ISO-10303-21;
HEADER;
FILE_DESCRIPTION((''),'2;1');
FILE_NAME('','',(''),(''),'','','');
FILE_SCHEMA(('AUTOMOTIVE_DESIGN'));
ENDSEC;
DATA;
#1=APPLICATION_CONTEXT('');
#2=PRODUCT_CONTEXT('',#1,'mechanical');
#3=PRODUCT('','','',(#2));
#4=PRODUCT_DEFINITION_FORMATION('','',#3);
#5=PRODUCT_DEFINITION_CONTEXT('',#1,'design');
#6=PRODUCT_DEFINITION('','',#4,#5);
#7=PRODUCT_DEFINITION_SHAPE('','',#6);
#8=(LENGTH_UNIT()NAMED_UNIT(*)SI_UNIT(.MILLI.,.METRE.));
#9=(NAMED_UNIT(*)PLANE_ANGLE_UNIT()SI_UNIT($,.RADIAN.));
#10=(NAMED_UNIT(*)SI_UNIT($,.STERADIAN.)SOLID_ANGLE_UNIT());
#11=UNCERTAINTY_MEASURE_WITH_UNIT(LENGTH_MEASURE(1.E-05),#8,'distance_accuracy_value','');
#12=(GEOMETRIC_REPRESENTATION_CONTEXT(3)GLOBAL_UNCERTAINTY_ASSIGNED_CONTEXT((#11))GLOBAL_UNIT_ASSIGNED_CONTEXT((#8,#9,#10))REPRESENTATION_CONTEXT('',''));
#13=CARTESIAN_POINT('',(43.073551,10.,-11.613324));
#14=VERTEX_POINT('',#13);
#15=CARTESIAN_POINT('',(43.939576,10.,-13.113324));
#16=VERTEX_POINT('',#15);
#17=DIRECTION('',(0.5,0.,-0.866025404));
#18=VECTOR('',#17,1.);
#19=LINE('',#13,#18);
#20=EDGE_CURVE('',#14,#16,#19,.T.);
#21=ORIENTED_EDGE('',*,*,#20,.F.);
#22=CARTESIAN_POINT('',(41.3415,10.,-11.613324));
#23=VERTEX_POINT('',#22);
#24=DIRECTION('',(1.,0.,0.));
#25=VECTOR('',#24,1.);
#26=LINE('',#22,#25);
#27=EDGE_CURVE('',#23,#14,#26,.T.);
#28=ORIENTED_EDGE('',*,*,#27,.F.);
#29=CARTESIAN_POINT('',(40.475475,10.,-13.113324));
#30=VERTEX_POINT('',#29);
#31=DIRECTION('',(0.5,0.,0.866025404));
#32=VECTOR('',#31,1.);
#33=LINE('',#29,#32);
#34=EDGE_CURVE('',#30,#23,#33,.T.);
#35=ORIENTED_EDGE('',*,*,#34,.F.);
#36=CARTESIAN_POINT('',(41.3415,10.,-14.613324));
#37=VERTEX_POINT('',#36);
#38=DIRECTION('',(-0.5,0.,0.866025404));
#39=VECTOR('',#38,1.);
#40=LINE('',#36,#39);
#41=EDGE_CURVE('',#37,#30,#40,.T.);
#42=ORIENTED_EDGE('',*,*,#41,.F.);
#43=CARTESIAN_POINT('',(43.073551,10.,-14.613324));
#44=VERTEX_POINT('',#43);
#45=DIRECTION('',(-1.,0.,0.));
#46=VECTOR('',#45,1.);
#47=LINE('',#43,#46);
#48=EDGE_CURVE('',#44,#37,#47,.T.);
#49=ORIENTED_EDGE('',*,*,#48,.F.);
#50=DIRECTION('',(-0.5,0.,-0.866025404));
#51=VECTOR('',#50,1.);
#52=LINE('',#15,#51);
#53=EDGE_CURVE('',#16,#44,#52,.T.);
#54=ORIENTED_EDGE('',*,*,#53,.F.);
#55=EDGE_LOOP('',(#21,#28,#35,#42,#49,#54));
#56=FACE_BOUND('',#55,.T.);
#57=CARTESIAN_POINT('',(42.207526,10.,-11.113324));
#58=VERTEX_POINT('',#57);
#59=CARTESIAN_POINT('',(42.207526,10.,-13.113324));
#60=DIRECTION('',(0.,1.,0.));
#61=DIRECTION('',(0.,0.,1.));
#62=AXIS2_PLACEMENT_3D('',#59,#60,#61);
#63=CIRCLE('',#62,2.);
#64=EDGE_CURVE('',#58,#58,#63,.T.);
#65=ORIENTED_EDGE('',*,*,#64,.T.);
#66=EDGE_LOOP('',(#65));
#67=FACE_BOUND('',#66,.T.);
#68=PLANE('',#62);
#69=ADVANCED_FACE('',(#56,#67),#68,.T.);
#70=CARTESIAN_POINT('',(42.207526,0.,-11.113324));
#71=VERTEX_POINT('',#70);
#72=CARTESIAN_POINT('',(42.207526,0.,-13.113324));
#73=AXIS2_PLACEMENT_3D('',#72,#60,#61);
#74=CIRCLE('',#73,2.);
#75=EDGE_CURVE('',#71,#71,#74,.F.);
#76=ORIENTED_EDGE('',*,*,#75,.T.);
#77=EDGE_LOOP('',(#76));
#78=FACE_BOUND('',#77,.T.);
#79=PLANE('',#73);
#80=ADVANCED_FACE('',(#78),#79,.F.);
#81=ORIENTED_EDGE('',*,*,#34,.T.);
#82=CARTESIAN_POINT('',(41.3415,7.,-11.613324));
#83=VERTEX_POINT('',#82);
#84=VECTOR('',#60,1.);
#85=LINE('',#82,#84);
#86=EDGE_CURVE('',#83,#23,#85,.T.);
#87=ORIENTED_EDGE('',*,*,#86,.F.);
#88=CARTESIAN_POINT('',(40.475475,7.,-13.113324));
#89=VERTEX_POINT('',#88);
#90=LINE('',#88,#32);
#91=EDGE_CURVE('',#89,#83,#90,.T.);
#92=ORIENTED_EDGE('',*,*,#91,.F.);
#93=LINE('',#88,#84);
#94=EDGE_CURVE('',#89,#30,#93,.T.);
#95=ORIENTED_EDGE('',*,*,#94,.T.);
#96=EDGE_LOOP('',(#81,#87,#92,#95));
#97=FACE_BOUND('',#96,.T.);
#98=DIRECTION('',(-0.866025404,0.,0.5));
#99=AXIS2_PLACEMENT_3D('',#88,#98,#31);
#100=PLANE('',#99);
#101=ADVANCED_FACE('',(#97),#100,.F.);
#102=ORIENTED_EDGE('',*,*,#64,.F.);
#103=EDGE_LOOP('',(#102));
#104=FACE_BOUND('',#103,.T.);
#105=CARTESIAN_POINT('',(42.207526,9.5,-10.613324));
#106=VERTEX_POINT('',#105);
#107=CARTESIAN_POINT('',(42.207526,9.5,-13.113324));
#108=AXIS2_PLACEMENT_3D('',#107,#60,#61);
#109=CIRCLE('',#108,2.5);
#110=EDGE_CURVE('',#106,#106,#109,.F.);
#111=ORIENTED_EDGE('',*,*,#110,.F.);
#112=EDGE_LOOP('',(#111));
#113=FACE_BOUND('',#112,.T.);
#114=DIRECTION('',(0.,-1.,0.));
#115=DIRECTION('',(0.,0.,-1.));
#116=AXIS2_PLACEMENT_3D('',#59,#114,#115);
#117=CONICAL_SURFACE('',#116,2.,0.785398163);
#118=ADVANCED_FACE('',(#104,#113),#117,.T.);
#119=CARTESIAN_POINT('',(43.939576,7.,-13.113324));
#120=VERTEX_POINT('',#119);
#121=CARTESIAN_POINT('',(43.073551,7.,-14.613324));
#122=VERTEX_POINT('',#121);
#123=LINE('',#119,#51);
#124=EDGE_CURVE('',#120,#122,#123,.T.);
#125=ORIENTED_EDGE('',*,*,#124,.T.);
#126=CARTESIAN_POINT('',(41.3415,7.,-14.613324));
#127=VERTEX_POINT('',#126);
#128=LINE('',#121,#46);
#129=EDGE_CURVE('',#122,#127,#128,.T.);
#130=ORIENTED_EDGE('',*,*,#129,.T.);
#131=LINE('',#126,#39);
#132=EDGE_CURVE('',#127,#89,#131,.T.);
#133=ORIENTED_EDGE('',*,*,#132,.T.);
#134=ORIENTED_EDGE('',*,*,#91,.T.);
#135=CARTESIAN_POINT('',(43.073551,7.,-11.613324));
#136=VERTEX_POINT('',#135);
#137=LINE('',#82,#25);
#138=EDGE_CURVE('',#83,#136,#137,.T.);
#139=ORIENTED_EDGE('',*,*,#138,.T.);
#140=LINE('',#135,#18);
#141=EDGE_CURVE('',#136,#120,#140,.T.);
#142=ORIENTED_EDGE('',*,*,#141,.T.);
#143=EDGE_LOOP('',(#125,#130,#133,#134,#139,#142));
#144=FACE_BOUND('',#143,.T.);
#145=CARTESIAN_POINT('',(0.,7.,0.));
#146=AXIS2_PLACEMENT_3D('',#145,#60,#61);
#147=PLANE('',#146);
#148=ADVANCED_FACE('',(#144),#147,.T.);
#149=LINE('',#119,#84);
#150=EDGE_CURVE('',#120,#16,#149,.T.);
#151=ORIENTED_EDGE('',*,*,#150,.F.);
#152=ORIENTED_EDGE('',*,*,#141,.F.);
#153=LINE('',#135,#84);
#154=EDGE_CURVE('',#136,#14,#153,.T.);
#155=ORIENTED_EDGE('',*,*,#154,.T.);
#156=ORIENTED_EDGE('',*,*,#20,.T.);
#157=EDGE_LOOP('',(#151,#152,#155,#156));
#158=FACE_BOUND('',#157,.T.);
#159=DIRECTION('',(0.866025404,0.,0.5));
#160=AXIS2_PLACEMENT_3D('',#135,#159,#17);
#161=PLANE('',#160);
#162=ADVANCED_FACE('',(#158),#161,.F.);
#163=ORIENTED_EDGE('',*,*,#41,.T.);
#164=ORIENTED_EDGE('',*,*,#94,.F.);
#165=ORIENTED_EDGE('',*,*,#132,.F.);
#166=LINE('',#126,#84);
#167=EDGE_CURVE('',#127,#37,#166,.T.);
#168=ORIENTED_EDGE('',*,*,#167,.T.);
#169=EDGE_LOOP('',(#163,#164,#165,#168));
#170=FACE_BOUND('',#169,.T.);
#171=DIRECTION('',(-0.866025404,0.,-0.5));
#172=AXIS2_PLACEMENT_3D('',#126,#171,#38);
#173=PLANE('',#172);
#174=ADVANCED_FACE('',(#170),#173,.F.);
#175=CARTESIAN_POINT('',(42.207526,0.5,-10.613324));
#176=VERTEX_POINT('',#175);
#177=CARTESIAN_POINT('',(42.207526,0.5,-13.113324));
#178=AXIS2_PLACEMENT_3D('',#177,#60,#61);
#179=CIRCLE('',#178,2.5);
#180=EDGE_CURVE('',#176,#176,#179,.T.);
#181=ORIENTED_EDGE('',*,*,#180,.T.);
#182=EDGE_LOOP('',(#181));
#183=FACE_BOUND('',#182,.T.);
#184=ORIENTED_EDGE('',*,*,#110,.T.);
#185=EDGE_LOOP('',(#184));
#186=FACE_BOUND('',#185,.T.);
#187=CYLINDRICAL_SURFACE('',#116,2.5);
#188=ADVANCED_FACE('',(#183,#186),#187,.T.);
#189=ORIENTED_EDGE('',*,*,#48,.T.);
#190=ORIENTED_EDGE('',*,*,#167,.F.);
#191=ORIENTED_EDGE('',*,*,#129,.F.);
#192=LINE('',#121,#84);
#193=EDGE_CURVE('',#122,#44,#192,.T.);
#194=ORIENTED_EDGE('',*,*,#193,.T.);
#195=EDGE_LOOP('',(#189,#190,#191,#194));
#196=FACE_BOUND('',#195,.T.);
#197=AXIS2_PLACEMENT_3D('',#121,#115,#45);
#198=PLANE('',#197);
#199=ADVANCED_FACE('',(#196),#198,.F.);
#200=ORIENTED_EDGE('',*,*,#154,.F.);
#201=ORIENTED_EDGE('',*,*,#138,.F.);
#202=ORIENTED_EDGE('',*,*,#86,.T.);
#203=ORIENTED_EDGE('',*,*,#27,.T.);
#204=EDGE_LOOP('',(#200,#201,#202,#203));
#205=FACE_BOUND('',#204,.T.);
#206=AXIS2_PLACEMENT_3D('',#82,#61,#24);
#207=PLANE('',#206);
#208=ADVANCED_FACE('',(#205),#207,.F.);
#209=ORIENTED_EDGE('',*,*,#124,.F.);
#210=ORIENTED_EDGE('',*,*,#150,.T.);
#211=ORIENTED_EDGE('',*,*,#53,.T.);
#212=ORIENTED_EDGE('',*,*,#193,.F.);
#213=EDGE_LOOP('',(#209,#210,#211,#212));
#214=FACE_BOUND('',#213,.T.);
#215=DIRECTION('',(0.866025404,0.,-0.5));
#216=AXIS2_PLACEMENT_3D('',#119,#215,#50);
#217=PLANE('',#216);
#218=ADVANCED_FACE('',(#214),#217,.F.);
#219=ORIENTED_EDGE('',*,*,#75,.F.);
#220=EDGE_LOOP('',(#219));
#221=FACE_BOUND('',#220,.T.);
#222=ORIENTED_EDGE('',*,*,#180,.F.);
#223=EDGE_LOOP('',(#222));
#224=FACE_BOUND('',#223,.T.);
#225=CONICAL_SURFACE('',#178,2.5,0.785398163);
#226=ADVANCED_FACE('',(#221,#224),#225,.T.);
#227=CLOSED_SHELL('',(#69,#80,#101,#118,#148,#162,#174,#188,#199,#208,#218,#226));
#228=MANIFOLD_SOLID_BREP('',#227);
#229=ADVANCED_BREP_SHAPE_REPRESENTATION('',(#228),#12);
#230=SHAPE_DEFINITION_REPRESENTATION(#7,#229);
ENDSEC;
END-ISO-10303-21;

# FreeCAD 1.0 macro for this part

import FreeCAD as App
import Part
import Sketcher
from FreeCAD import Vector
Q = App.Units.Quantity


def edges_at(feature, points):
    """Names of the edges that pass closest to the given points."""
    edges = feature.Shape.Edges
    near = lambda p: min(range(len(edges)), key=lambda i: edges[i].distToShape(Part.Vertex(*p))[0])
    return sorted({f"Edge{near(p) + 1}" for p in points})

doc = App.newDocument("Part")
body = doc.addObject("PartDesign::Body", "Body")

# Sketch on XZ plane
sketch1 = body.newObject("Sketcher::SketchObject", "Sketch")
sketch1.AttachmentSupport = (doc.getObject("XZ_Plane"), [""])
sketch1.MapMode = "FlatFace"
sketch1.addGeometry(Part.Circle(Vector(42.207526, -13.113324, 0), Vector(0, 0, 1), 2.5), False)
sketch1.addConstraint(Sketcher.Constraint("Diameter", 0, 5.0))
sketch1.addConstraint(Sketcher.Constraint("DistanceX", -1, 1, 0, 3, 42.207526))
sketch1.addConstraint(Sketcher.Constraint("DistanceY", 0, 3, -1, 1, 13.113324))
pad1 = body.newObject("PartDesign::Pad", "Pad")
pad1.Profile = sketch1
pad1.Length = 10
pad1.Reversed = True

# Sketch on XZ plane
sketch2 = body.newObject("Sketcher::SketchObject", "Sketch001")
sketch2.AttachmentSupport = (doc.getObject("XZ_Plane"), [""])
sketch2.MapMode = "FlatFace"
sketch2.AttachmentOffset = App.Placement(Vector(0, 0, -10), App.Rotation())
sketch2.addGeometry(Part.LineSegment(Vector(43.939576, -13.113324, 0), Vector(43.073551, -14.613324, 0)), False)
sketch2.addGeometry(Part.LineSegment(Vector(43.073551, -14.613324, 0), Vector(41.3415, -14.613324, 0)), False)
sketch2.addGeometry(Part.LineSegment(Vector(41.3415, -14.613324, 0), Vector(40.475475, -13.113324, 0)), False)
sketch2.addGeometry(Part.LineSegment(Vector(40.475475, -13.113324, 0), Vector(41.3415, -11.613324, 0)), False)
sketch2.addGeometry(Part.LineSegment(Vector(41.3415, -11.613324, 0), Vector(43.073551, -11.613324, 0)), False)
sketch2.addGeometry(Part.LineSegment(Vector(43.073551, -11.613324, 0), Vector(43.939576, -13.113324, 0)), False)
sketch2.addConstraint(Sketcher.Constraint("Coincident", 0, 2, 1, 1))
sketch2.addConstraint(Sketcher.Constraint("Coincident", 1, 2, 2, 1))
sketch2.addConstraint(Sketcher.Constraint("Coincident", 2, 2, 3, 1))
sketch2.addConstraint(Sketcher.Constraint("Coincident", 3, 2, 4, 1))
sketch2.addConstraint(Sketcher.Constraint("Coincident", 4, 2, 5, 1))
sketch2.addConstraint(Sketcher.Constraint("Coincident", 5, 2, 0, 1))
sketch2.addConstraint(Sketcher.Constraint("Horizontal", 1))
sketch2.addConstraint(Sketcher.Constraint("Horizontal", 4))
sketch2.addConstraint(Sketcher.Constraint("Parallel", 0, 3))
sketch2.addConstraint(Sketcher.Constraint("Parallel", 2, 5))
sketch2.addConstraint(Sketcher.Constraint("Horizontal", 2, 2, 5, 2))
sketch2.addConstraint(Sketcher.Constraint("Vertical", 1, 2, 3, 2))
sketch2.addConstraint(Sketcher.Constraint("Vertical", 0, 2, 4, 2))
sketch2.addConstraint(Sketcher.Constraint("Angle", 0, Q("-120 deg")))
sketch2.addConstraint(Sketcher.Constraint("DistanceY", 1, 2, 3, 2, 3.0))
sketch2.addConstraint(Sketcher.Constraint("DistanceX", 1, 2, 1, 1, 1.732051))
sketch2.addConstraint(Sketcher.Constraint("DistanceX", -1, 1, 1, 2, 41.3415))
sketch2.addConstraint(Sketcher.Constraint("DistanceY", 0, 2, -1, 1, 14.613324))
pocket1 = body.newObject("PartDesign::Pocket", "Pocket")
pocket1.Profile = sketch2
pocket1.Length = 3
pocket1.Reversed = True
doc.recompute()

chamfer = body.newObject("PartDesign::Chamfer", "Chamfer")
chamfer.Base = (pocket1, edges_at(pocket1, [(42.208, 0, -15.613), (42.208, 10, -15.613)]))
chamfer.Size = 0.5

doc.recompute()
